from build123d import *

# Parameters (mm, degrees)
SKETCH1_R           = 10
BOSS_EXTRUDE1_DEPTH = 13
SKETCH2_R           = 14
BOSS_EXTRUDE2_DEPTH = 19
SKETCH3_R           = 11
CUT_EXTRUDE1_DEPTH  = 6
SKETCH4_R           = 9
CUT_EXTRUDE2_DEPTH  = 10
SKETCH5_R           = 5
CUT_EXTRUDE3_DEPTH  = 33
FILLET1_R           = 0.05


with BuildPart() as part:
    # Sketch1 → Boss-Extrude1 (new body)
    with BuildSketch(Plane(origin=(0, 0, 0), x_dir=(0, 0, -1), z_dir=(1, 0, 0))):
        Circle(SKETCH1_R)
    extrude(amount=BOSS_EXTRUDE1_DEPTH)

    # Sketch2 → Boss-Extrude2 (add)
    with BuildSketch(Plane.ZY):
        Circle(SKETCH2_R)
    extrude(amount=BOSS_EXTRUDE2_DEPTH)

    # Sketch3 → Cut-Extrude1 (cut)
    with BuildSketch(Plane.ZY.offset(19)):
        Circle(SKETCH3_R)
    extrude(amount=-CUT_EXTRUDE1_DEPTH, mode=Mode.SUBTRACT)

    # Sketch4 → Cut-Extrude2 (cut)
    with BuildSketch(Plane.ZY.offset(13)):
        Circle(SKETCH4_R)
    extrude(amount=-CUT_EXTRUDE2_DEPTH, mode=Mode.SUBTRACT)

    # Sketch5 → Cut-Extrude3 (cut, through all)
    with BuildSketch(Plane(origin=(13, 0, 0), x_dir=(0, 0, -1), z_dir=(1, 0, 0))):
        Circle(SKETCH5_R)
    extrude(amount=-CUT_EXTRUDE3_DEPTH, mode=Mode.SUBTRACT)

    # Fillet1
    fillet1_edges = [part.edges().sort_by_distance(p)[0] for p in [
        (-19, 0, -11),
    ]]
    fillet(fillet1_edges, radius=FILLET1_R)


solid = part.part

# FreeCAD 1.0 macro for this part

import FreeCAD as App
import Part
import Sketcher
Q = App.Units.Quantity


def edges_at(feature, points):
    """Names of the edges that pass closest to the given points."""
    edges = feature.Shape.Edges
    near = lambda p: min(range(len(edges)), key=lambda i: edges[i].distToShape(Part.Vertex(*p))[0])
    return sorted({f"Edge{near(p) + 1}" for p in points})

doc = App.newDocument("Part")
body = doc.addObject("PartDesign::Body", "Body")

# Sketch on YZ plane
sketch1 = body.newObject("Sketcher::SketchObject", "Sketch")
sketch1.AttachmentSupport = (doc.getObject("YZ_Plane"), [""])
sketch1.MapMode = "FlatFace"
sketch1.addGeometry(Part.Circle(App.Vector(0, 0, 0), App.Vector(0, 0, 1), 10), False)
sketch1.addConstraint([
    Sketcher.Constraint("Coincident", 0, 3, -1, 1),
    Sketcher.Constraint("Diameter", 0, Q("20 mm")),
])
pad1 = body.newObject("PartDesign::Pad", "Pad")
pad1.Profile = sketch1
pad1.Length = 13

# Sketch on YZ plane
sketch2 = body.newObject("Sketcher::SketchObject", "Sketch001")
sketch2.AttachmentSupport = (doc.getObject("YZ_Plane"), [""])
sketch2.MapMode = "FlatFace"
sketch2.addGeometry(Part.Circle(App.Vector(0, 0, 0), App.Vector(0, 0, 1), 14), False)
sketch2.addConstraint([
    Sketcher.Constraint("Coincident", 0, 3, -1, 1),
    Sketcher.Constraint("Diameter", 0, Q("28 mm")),
])
pad2 = body.newObject("PartDesign::Pad", "Pad001")
pad2.Profile = sketch2
pad2.Length = 19
pad2.Reversed = True

# Sketch on YZ plane
sketch3 = body.newObject("Sketcher::SketchObject", "Sketch002")
sketch3.AttachmentSupport = (doc.getObject("YZ_Plane"), [""])
sketch3.MapMode = "FlatFace"
sketch3.AttachmentOffset = App.Placement(App.Vector(0, 0, -19), App.Rotation())
sketch3.addGeometry(Part.Circle(App.Vector(0, 0, 0), App.Vector(0, 0, 1), 11), False)
sketch3.addConstraint([
    Sketcher.Constraint("Coincident", 0, 3, -1, 1),
    Sketcher.Constraint("Diameter", 0, Q("22 mm")),
])
pocket1 = body.newObject("PartDesign::Pocket", "Pocket")
pocket1.Profile = sketch3
pocket1.Length = 6
pocket1.Reversed = True

# Sketch on YZ plane
sketch4 = body.newObject("Sketcher::SketchObject", "Sketch003")
sketch4.AttachmentSupport = (doc.getObject("YZ_Plane"), [""])
sketch4.MapMode = "FlatFace"
sketch4.AttachmentOffset = App.Placement(App.Vector(0, 0, -13), App.Rotation())
sketch4.addGeometry(Part.Circle(App.Vector(0, 0, 0), App.Vector(0, 0, 1), 9), False)
sketch4.addConstraint([
    Sketcher.Constraint("Coincident", 0, 3, -1, 1),
    Sketcher.Constraint("Diameter", 0, Q("18 mm")),
])
pocket2 = body.newObject("PartDesign::Pocket", "Pocket001")
pocket2.Profile = sketch4
pocket2.Length = 10
pocket2.Reversed = True

# Sketch on YZ plane
sketch5 = body.newObject("Sketcher::SketchObject", "Sketch004")
sketch5.AttachmentSupport = (doc.getObject("YZ_Plane"), [""])
sketch5.MapMode = "FlatFace"
sketch5.AttachmentOffset = App.Placement(App.Vector(0, 0, 13), App.Rotation())
sketch5.addGeometry(Part.Circle(App.Vector(0, 0, 0), App.Vector(0, 0, 1), 5), False)
sketch5.addConstraint([
    Sketcher.Constraint("Coincident", 0, 3, -1, 1),
    Sketcher.Constraint("Diameter", 0, Q("10 mm")),
])
pocket3 = body.newObject("PartDesign::Pocket", "Pocket002")
pocket3.Profile = sketch5
pocket3.Type = "ThroughAll"
doc.recompute()

fillet = body.newObject("PartDesign::Fillet", "Fillet")
fillet.Base = (pocket3, edges_at(pocket3, [(-19, 0, -11)]))
fillet.Radius = 0.05

doc.recompute()
